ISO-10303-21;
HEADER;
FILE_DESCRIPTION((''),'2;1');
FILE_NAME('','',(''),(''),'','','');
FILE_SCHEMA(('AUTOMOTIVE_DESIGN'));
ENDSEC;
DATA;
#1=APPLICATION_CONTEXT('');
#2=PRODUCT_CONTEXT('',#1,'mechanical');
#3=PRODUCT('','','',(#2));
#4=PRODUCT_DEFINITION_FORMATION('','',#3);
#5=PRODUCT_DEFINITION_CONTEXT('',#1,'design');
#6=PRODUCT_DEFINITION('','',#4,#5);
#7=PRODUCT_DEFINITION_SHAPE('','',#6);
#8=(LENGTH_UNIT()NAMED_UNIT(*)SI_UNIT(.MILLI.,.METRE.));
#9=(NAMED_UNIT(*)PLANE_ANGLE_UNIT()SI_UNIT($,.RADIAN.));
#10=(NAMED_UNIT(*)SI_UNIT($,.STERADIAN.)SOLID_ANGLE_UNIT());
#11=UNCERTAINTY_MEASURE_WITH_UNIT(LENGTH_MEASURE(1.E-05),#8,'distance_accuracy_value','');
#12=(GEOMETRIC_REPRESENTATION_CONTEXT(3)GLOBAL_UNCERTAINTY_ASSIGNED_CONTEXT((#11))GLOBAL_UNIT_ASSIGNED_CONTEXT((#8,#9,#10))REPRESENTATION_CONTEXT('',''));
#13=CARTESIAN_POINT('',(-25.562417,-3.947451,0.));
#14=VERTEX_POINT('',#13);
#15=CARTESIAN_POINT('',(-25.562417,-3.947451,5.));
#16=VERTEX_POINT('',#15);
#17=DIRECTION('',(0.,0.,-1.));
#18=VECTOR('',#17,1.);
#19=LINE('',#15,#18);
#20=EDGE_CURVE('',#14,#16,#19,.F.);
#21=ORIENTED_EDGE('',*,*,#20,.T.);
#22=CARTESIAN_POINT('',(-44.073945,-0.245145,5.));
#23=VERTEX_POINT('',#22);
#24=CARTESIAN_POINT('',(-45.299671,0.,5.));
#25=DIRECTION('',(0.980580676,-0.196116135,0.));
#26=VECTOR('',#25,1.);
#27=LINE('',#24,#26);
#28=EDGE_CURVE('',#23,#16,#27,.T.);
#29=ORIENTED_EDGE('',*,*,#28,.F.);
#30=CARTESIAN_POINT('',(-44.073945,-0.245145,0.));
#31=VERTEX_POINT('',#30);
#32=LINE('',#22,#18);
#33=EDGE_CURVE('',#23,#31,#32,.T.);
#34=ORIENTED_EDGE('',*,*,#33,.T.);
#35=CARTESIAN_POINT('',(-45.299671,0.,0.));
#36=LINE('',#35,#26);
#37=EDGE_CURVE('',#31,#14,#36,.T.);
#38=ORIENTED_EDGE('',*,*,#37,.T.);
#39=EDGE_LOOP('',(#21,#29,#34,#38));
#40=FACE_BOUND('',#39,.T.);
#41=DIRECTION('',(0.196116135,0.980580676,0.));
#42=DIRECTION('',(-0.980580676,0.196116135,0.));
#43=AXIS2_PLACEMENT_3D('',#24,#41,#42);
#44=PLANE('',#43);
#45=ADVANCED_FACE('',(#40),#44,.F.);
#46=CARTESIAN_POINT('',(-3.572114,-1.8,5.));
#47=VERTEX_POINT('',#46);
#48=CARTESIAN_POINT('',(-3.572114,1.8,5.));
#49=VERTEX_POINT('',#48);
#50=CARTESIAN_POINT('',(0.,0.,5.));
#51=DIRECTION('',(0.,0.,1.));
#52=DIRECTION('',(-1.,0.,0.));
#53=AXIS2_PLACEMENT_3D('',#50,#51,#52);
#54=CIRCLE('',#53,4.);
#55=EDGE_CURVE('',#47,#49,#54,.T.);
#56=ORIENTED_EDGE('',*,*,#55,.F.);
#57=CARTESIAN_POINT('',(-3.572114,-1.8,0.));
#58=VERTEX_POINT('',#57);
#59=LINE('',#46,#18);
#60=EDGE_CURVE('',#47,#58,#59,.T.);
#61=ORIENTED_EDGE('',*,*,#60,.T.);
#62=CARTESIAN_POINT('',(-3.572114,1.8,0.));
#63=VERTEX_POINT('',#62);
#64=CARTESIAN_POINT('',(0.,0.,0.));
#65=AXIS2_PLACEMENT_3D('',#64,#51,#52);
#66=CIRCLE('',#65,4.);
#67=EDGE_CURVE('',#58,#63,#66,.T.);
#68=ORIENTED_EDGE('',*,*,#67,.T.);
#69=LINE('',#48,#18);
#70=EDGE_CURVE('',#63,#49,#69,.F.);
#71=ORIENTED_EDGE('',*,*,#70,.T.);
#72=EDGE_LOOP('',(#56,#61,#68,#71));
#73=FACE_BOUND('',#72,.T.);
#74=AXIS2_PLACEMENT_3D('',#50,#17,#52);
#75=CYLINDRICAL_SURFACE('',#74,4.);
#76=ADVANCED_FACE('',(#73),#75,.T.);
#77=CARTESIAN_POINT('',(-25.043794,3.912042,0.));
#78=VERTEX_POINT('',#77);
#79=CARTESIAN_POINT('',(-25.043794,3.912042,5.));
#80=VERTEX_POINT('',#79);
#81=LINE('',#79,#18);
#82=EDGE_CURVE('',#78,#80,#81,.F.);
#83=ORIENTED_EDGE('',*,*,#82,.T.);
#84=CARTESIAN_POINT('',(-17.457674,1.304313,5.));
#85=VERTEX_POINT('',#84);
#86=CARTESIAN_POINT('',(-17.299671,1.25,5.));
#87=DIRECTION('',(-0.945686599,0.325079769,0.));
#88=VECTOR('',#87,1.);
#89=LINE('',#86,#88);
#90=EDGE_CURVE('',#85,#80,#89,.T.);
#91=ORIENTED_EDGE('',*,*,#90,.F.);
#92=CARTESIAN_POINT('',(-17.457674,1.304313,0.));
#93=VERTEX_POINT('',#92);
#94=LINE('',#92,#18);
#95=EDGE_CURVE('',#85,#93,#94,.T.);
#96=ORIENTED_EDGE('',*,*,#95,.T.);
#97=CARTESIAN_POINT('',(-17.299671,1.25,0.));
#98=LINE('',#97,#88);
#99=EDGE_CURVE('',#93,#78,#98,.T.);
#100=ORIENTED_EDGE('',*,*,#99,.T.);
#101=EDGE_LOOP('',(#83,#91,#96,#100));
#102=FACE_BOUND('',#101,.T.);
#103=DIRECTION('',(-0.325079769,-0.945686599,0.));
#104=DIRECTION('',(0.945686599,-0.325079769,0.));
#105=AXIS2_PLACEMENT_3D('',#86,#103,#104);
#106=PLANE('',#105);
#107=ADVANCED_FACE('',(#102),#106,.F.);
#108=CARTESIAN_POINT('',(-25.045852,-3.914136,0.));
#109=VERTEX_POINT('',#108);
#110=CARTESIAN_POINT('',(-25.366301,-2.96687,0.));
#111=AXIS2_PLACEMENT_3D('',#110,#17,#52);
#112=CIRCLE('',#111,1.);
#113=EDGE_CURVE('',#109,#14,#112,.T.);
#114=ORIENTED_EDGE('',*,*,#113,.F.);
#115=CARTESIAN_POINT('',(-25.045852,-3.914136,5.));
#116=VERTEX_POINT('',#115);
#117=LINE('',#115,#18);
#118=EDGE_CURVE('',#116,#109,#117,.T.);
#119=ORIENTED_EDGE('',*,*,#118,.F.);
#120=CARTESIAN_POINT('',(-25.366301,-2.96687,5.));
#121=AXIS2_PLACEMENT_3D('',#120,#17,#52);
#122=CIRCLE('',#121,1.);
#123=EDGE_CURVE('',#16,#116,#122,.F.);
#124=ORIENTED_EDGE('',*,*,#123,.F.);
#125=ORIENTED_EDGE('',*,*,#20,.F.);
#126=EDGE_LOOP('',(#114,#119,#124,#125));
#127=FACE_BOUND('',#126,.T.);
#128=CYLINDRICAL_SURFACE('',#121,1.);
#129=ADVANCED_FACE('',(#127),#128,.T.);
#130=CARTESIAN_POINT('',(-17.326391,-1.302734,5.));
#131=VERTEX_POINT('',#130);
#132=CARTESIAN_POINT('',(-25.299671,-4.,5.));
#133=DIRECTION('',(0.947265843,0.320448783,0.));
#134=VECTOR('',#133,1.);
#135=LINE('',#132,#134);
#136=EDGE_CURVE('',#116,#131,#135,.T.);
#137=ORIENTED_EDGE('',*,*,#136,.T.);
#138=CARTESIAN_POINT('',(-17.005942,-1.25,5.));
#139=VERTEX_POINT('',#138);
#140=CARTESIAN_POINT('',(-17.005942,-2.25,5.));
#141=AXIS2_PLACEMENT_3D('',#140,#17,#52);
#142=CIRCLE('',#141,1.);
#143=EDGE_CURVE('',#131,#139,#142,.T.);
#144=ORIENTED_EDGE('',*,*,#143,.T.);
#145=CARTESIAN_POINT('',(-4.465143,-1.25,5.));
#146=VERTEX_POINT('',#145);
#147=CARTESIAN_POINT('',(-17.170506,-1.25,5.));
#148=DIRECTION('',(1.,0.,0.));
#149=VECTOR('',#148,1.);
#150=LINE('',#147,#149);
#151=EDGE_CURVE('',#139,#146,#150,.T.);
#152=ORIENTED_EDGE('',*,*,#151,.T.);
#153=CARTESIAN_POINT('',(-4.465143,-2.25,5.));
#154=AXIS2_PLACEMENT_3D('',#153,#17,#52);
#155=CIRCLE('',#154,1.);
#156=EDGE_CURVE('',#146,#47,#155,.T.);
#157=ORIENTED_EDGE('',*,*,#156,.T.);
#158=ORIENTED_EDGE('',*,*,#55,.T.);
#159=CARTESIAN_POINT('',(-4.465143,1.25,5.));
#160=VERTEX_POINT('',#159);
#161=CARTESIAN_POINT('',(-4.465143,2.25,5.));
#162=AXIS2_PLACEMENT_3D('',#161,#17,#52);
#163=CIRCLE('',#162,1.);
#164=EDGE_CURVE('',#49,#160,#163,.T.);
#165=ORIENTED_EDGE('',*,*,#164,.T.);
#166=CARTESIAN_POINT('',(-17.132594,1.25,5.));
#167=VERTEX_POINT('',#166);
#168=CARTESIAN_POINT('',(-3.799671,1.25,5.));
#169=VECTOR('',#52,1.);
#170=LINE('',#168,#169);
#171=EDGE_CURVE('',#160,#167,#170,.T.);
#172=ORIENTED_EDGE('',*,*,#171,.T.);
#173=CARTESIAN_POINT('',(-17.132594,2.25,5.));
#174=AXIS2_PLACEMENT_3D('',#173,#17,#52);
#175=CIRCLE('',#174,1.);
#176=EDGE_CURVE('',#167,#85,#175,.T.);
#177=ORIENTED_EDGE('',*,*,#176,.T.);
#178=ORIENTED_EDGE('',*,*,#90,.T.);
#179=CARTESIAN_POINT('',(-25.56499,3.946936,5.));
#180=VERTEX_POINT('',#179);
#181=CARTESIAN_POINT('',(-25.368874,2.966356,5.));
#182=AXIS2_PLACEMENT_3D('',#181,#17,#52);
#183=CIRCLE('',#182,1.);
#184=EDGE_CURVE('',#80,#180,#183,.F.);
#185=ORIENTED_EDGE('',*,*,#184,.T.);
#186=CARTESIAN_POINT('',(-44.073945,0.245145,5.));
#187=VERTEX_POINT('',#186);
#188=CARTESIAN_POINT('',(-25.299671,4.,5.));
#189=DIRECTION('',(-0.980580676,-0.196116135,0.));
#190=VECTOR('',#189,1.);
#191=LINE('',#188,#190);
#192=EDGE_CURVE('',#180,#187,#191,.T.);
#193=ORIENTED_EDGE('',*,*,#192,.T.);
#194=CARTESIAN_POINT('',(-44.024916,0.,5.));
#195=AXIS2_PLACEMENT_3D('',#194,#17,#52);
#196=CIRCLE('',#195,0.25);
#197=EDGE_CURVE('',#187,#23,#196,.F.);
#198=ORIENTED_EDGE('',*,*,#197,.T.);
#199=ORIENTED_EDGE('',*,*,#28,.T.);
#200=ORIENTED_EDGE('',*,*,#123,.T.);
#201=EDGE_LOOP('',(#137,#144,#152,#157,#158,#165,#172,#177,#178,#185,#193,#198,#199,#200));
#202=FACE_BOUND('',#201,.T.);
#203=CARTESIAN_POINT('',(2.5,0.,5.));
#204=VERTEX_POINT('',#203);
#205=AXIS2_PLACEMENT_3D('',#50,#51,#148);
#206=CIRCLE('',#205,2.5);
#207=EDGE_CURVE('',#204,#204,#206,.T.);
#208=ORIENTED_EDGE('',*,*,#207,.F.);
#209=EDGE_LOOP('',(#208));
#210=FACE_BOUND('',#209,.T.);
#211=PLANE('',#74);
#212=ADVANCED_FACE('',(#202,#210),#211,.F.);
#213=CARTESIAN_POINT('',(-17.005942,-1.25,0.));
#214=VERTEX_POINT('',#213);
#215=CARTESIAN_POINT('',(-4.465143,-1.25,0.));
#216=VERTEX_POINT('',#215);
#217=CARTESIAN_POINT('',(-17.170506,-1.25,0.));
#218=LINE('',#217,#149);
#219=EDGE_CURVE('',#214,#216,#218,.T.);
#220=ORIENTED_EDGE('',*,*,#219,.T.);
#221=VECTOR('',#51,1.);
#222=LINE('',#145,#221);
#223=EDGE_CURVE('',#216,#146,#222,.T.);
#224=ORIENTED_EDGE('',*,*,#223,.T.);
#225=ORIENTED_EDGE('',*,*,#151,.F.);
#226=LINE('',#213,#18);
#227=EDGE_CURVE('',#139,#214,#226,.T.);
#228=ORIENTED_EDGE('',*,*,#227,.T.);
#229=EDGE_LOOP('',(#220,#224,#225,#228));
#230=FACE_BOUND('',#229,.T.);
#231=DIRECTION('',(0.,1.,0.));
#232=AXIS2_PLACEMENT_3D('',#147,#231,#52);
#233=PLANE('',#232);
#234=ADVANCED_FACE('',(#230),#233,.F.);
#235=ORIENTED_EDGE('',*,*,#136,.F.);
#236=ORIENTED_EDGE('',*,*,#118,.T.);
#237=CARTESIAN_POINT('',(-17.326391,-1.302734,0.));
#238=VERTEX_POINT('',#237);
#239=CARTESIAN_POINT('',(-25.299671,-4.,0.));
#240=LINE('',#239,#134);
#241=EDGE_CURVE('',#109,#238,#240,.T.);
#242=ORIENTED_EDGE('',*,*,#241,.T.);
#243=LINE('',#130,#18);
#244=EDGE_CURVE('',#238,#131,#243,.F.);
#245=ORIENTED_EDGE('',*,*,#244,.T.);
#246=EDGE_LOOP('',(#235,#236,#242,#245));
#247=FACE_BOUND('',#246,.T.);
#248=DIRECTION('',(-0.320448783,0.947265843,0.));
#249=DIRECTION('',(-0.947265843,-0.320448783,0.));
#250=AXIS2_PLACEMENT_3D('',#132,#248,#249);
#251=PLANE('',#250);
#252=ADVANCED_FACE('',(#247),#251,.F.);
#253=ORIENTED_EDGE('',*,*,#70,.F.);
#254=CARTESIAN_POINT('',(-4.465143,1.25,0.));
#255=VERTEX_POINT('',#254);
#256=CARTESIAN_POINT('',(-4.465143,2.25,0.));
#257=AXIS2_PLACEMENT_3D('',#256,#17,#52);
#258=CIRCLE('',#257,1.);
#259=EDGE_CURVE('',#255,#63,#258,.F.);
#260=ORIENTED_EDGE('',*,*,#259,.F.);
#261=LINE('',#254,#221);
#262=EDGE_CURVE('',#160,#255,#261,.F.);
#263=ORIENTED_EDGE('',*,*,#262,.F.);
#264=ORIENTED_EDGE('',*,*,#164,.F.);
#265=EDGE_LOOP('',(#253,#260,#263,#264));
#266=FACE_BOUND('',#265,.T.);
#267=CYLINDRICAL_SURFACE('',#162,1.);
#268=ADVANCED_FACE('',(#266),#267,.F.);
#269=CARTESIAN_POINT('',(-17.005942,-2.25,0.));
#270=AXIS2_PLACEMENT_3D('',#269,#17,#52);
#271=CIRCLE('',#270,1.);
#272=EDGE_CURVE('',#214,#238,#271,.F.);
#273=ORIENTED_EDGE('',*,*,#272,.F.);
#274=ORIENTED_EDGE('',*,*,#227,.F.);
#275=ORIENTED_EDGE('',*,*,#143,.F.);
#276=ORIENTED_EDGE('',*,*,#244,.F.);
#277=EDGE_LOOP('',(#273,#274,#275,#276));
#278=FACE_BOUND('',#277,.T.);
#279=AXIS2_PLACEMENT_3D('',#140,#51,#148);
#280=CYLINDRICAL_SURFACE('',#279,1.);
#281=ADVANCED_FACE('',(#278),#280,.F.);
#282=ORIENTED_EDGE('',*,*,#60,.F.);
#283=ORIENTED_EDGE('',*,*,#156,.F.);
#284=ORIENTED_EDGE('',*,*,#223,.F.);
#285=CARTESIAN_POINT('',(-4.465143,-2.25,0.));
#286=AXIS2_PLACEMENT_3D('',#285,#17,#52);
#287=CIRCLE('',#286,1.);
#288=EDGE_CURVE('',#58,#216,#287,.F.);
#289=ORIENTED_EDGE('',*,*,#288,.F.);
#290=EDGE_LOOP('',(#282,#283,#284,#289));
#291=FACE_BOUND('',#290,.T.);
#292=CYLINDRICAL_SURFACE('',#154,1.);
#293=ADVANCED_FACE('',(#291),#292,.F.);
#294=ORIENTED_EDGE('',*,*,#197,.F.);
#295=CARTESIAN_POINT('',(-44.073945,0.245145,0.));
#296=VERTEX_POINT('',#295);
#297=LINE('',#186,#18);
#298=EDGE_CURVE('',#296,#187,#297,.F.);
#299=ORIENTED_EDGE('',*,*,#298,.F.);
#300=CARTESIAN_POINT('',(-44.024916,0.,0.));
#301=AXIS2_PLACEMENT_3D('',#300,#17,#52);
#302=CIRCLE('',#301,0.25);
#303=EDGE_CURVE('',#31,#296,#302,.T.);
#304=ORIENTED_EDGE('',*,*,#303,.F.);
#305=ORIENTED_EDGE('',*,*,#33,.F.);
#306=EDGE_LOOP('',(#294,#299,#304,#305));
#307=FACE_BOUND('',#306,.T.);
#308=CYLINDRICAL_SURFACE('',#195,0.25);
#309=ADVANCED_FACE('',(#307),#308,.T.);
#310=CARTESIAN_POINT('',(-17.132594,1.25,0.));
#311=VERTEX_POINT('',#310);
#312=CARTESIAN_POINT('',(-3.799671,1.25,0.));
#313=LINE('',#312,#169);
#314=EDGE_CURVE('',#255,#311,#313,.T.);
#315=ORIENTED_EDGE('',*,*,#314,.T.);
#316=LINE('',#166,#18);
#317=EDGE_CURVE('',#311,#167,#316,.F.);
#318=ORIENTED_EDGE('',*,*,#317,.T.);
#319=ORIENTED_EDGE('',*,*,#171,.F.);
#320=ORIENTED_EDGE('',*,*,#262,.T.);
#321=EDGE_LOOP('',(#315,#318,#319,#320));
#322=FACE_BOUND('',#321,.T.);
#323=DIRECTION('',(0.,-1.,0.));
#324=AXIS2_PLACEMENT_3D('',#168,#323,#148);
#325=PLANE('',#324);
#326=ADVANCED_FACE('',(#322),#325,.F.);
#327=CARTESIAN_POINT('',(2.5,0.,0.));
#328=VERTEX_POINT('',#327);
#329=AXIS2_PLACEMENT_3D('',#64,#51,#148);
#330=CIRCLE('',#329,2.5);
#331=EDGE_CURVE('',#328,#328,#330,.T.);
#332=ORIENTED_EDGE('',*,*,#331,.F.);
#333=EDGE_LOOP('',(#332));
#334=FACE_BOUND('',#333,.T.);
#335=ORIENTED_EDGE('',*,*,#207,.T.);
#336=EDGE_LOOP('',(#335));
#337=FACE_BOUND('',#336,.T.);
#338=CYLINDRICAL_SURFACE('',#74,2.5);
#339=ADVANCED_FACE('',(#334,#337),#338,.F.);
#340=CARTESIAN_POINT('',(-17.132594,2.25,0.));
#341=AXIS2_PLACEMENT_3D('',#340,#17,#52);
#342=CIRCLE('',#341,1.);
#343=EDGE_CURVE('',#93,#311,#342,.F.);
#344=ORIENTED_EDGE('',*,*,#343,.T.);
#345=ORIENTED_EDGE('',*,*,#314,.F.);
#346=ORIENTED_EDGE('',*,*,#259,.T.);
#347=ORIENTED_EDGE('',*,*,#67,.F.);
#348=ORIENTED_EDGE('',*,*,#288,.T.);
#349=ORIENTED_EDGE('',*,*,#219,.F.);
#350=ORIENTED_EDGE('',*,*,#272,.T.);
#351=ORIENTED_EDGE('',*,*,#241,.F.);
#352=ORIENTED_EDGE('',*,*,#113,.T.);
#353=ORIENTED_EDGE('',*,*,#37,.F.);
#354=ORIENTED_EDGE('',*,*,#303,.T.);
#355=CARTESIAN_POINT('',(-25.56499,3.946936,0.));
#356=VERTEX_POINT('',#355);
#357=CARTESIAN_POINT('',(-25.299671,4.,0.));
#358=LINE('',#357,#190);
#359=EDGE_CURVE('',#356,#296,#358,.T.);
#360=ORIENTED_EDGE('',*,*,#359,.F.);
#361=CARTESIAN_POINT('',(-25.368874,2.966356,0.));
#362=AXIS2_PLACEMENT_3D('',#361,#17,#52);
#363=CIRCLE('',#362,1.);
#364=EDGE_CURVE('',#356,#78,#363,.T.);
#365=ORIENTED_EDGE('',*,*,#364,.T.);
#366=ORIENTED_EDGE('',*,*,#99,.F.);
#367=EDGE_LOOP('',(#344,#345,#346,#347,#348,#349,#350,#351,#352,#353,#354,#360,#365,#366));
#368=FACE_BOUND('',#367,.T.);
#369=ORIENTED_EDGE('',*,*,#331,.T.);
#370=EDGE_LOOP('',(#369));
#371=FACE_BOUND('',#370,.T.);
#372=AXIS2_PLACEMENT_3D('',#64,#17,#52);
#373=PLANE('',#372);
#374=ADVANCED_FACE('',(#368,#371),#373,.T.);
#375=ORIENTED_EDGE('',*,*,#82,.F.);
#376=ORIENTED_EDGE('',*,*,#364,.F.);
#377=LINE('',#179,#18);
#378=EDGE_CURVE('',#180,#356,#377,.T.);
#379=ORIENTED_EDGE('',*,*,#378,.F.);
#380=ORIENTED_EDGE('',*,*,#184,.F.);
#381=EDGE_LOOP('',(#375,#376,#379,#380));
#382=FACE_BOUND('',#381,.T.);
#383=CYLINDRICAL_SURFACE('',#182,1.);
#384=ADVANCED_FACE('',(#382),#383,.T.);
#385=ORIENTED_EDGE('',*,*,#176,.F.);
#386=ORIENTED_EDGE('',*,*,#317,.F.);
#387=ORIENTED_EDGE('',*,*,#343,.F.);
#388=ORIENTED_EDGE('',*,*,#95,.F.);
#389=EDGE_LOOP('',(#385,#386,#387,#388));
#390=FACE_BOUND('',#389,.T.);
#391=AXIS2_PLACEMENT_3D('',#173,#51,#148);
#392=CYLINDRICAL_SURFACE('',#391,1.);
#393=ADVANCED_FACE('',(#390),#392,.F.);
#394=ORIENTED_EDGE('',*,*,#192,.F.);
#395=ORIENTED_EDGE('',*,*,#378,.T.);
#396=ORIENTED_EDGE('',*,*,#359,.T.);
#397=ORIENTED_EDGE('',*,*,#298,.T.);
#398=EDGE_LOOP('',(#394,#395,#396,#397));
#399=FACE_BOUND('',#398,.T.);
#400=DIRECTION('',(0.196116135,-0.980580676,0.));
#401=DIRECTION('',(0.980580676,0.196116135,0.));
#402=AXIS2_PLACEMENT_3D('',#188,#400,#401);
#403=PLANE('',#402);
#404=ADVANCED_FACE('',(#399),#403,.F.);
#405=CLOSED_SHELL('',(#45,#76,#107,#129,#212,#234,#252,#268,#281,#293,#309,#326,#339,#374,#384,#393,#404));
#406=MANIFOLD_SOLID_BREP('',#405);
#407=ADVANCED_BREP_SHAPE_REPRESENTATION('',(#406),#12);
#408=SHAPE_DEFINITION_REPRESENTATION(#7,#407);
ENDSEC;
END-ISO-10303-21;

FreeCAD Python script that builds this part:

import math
import FreeCAD as App
import Part
import Sketcher
Q = App.Units.Quantity


def edges_at(feature, points):
    """Names of the edges that pass closest to the given points."""
    edges = feature.Shape.Edges
    near = lambda p: min(range(len(edges)), key=lambda i: edges[i].distToShape(Part.Vertex(*p))[0])
    return sorted({f"Edge{near(p) + 1}" for p in points})

doc = App.newDocument("Part")
params = doc.addObject("Spreadsheet::Sheet", "Params")
for row, (alias, value) in enumerate([
    ("sketch1_diameter", "5 mm"),
    ("sketch1_radius", "4 mm"),
    ("sketch1_width", "13.5 mm"),
    ("pad1_length", "5 mm"),
    ("fillet_radius", "1 mm"),
    ("fillet2_radius", "0.25 mm"),
], start=1):
    params.set(f"A{row}", alias)
    params.set(f"B{row}", "=" + value)
    params.setAlias(f"B{row}", alias)

body = doc.addObject("PartDesign::Body", "Body")

# Sketch on XY plane
sketch1 = doc.addObject("Sketcher::SketchObject", "Sketch")
body.addObject(sketch1)
sketch1.AttachmentSupport = (doc.XY_Plane, [""])
sketch1.MapMode = "FlatFace"
sketch1.addGeometry([
    Part.LineSegment(App.Vector(-3.799671, 1.25, 0), App.Vector(-17.299671, 1.25, 0)),  # 0
    Part.LineSegment(App.Vector(-17.299671, 1.25, 0), App.Vector(-25.299671, 4, 0)),  # 1
    Part.LineSegment(App.Vector(-25.299671, 4, 0), App.Vector(-45.299671, 0, 0)),  # 2
    Part.LineSegment(App.Vector(-45.299671, 0, 0), App.Vector(-25.299671, -4, 0)),  # 3
    Part.LineSegment(App.Vector(-25.299671, -4, 0), App.Vector(-17.170506, -1.25, 0)),  # 4
    Part.LineSegment(App.Vector(-17.170506, -1.25, 0), App.Vector(-3.799671, -1.25, 0)),  # 5
    Part.ArcOfCircle(Part.Circle(App.Vector(0, 0, 0), App.Vector(0, 0, 1), 4), math.radians(-161.790043), math.radians(161.790043)),  # 6
    Part.Circle(App.Vector(0, 0, 0), App.Vector(0, 0, 1), 2.5),  # 7
], False)
sketch1.addConstraint([
    Sketcher.Constraint("Coincident", 0, 2, 1, 1),
    Sketcher.Constraint("Coincident", 1, 2, 2, 1),
    Sketcher.Constraint("Coincident", 2, 2, 3, 1),
    Sketcher.Constraint("Coincident", 3, 2, 4, 1),
    Sketcher.Constraint("Coincident", 4, 2, 5, 1),
    Sketcher.Constraint("Coincident", 5, 2, 6, 1),
    Sketcher.Constraint("Coincident", 6, 2, 0, 1),
    Sketcher.Constraint("Horizontal", 0),
    Sketcher.Constraint("Horizontal", 5),
    Sketcher.Constraint("Coincident", 6, 3, -1, 1),
    Sketcher.Constraint("Coincident", 7, 3, -1, 1),
    Sketcher.Constraint("Symmetric", 1, 2, 3, 2, -1),
    Sketcher.Constraint("PointOnObject", 2, 2, -1),
    Sketcher.Constraint("Vertical", 5, 2, 6, 2),
    Sketcher.Constraint("Diameter", 7, Q("5 mm")),
    Sketcher.Constraint("Radius", 6, Q("4 mm")),
    Sketcher.Constraint("DistanceX", 0, 2, 0, 1, Q("13.5 mm")),
    Sketcher.Constraint("DistanceY", -1, 1, 1, 2, Q("4 mm")),
    Sketcher.Constraint("DistanceX", 1, 2, 0, 2, Q("8 mm")),
    Sketcher.Constraint("DistanceX", 2, 2, 1, 2, Q("20 mm")),
    Sketcher.Constraint("DistanceY", 4, 2, 0, 2, Q("2.5 mm")),
    Sketcher.Constraint("DistanceX", 5, 1, 5, 2, Q("13.370835 mm")),
])
sketch1.setExpression("Constraints[14]", "Params.sketch1_diameter")
sketch1.setExpression("Constraints[15]", "Params.sketch1_radius")
sketch1.setExpression("Constraints[16]", "Params.sketch1_width")
pad1 = doc.addObject("PartDesign::Pad", "Pad")
body.addObject(pad1)
pad1.Profile = sketch1
pad1.setExpression("Length", "Params.pad1_length")
doc.recompute()

fillet = doc.addObject("PartDesign::Fillet", "Fillet")
body.addObject(fillet)
fillet.Base = (pad1, edges_at(pad1, [
    (-25.3, 4, 2.5),
    (-17.3, 1.25, 2.5),
    (-3.8, 1.25, 2.5),
    (-3.8, -1.25, 2.5),
    (-17.171, -1.25, 2.5),
    (-25.3, -4, 2.5),
]))
fillet.setExpression("Radius", "Params.fillet_radius")
doc.recompute()

fillet2 = doc.addObject("PartDesign::Fillet", "Fillet001")
body.addObject(fillet2)
fillet2.Base = (fillet, edges_at(fillet, [(-45.3, 0, 2.5)]))
fillet2.setExpression("Radius", "Params.fillet2_radius")

doc.recompute()
